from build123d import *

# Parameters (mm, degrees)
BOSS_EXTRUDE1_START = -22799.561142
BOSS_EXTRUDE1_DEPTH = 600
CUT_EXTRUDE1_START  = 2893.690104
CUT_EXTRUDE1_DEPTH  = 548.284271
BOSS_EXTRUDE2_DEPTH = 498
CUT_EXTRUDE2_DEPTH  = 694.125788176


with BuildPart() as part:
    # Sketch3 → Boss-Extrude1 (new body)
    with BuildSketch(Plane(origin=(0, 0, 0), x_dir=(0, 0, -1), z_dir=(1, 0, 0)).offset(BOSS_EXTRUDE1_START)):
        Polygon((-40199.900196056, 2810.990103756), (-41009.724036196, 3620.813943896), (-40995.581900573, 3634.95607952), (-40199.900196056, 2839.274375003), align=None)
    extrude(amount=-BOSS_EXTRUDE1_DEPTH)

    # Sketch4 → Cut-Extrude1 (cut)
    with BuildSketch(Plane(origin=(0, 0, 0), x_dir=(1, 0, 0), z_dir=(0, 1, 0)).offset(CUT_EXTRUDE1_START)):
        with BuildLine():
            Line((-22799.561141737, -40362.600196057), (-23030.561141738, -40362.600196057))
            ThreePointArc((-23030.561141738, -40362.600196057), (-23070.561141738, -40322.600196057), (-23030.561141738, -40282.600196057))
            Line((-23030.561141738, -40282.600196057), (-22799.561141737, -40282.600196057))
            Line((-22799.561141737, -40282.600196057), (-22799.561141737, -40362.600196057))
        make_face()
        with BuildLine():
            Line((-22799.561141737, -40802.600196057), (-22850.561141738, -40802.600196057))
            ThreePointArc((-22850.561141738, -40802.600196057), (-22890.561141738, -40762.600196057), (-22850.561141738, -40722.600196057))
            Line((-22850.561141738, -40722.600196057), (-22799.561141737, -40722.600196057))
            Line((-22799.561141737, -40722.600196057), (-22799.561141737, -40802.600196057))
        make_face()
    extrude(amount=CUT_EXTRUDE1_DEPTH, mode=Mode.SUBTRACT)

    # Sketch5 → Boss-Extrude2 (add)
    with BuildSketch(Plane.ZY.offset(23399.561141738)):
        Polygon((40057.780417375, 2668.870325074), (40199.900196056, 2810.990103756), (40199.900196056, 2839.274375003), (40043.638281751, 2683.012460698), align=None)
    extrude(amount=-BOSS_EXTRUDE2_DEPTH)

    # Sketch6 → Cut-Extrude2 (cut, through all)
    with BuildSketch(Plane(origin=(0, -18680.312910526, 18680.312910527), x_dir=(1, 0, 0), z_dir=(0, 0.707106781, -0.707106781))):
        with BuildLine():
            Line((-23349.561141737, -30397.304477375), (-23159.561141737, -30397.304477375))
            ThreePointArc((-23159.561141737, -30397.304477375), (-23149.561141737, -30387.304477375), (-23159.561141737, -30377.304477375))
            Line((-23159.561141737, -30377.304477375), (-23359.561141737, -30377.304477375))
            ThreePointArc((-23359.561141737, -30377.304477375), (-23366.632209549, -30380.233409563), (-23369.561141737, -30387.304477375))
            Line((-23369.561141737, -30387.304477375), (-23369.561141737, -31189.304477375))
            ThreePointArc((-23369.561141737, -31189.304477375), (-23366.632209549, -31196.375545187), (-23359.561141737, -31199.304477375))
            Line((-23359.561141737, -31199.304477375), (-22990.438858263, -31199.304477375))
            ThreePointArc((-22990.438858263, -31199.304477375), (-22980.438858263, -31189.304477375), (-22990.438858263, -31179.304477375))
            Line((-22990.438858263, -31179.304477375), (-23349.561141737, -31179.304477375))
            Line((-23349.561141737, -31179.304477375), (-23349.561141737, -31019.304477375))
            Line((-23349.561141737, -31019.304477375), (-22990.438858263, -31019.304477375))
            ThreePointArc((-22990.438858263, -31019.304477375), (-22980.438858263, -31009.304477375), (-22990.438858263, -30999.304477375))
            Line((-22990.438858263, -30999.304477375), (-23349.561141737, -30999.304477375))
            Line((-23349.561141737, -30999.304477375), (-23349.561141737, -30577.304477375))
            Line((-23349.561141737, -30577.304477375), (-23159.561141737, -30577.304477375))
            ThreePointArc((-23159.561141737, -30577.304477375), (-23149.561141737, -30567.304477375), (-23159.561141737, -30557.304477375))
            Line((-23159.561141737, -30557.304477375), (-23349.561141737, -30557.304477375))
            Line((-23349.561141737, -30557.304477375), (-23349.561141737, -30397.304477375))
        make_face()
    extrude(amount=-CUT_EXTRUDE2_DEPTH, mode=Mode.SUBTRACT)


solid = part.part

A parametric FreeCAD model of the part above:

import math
import FreeCAD as App
import Part
import Sketcher

V = App.Vector
Q = App.Units.Quantity


def add_polygon(sketch, points):
    """Adds a closed chain of lines whose ends are joined by coincident constraints."""
    first, n = sketch.GeometryCount, len(points)
    for a, b in zip(points, points[1:] + points[:1]):
        sketch.addGeometry(Part.LineSegment(App.Vector(*a, 0), App.Vector(*b, 0)), False)
    for i in range(n):
        sketch.addConstraint(Sketcher.Constraint("Coincident", first + i, 2, first + (i + 1) % n, 1))

doc = App.newDocument("Part")
body = doc.addObject("PartDesign::Body", "Body")

# Sketch on YZ plane
sketch1 = doc.addObject("Sketcher::SketchObject", "Sketch")
body.addObject(sketch1)
sketch1.AttachmentSupport = (doc.YZ_Plane, [""])
sketch1.MapMode = "FlatFace"
sketch1.AttachmentOffset = App.Placement(V(0, 0, -22799.561142), App.Rotation())
add_polygon(sketch1, [(3621, 41010), (2811, 40200), (2839, 40200), (3635, 40996)])  # lines 0-3
sketch1.addConstraint([
    Sketcher.Constraint("Horizontal", 1),
    Sketcher.Constraint("Parallel", 0, 2),
    Sketcher.Constraint("Perpendicular", 2, 3),
    Sketcher.Constraint("Angle", 0, Q("-135 deg")),
    Sketcher.Constraint("Distance", 3, Q("20 mm")),
    Sketcher.Constraint("DistanceY", -1, 1, 2, 2, Q("40995.581901 mm")),
    Sketcher.Constraint("DistanceX", -1, 1, 2, 2, Q("3634.95608 mm")),
    Sketcher.Constraint("DistanceX", 1, 2, 3, 2, Q("781.539569 mm")),
])
pad1 = doc.addObject("PartDesign::Pad", "Pad")
body.addObject(pad1)
pad1.Profile = sketch1
pad1.Length = 600
pad1.Reversed = True

# Sketch on XZ plane
sketch2 = doc.addObject("Sketcher::SketchObject", "Sketch001")
body.addObject(sketch2)
sketch2.AttachmentSupport = (doc.XZ_Plane, [""])
sketch2.MapMode = "FlatFace"
sketch2.AttachmentOffset = App.Placement(V(0, 0, -2893.690104), App.Rotation())
sketch2.addGeometry([
    Part.LineSegment(V(-23031, 40363, 0), V(-22800, 40363, 0)),  # 0
    Part.LineSegment(V(-22800, 40363, 0), V(-22800, 40283, 0)),  # 1
    Part.LineSegment(V(-22800, 40283, 0), V(-23031, 40283, 0)),  # 2
    Part.ArcOfCircle(Part.Circle(V(-23031, 40323, 0), V(0, 0, 1), 40), math.radians(90), math.radians(270)),  # 3
    Part.LineSegment(V(-22851, 40803, 0), V(-22800, 40803, 0)),  # 4
    Part.LineSegment(V(-22800, 40803, 0), V(-22800, 40723, 0)),  # 5
    Part.LineSegment(V(-22800, 40723, 0), V(-22851, 40723, 0)),  # 6
    Part.ArcOfCircle(Part.Circle(V(-22851, 40763, 0), V(0, 0, 1), 40), math.radians(90), math.radians(270)),  # 7
], False)
sketch2.addConstraint([
    Sketcher.Constraint("Coincident", 0, 2, 1, 1),
    Sketcher.Constraint("Coincident", 1, 2, 2, 1),
    Sketcher.Constraint("Tangent", 2, 2, 3, 2),
    Sketcher.Constraint("Tangent", 3, 1, 0, 1),
    Sketcher.Constraint("Coincident", 4, 2, 5, 1),
    Sketcher.Constraint("Coincident", 5, 2, 6, 1),
    Sketcher.Constraint("Tangent", 6, 2, 7, 2),
    Sketcher.Constraint("Tangent", 7, 1, 4, 1),
    Sketcher.Constraint("Horizontal", 0),
    Sketcher.Constraint("Vertical", 1),
    Sketcher.Constraint("Horizontal", 2),
    Sketcher.Constraint("Horizontal", 4),
    Sketcher.Constraint("Vertical", 5),
    Sketcher.Constraint("Horizontal", 6),
    Sketcher.Constraint("Equal", 3, 7),
    Sketcher.Constraint("Vertical", 1, 2, 4, 2),
    Sketcher.Constraint("Radius", 3, Q("40 mm")),
    Sketcher.Constraint("DistanceX", 0, 1, 0, 2, Q("231 mm")),
    Sketcher.Constraint("DistanceX", 4, 1, 4, 2, Q("51 mm")),
    Sketcher.Constraint("DistanceY", 3, 3, 7, 3, Q("440 mm")),
    Sketcher.Constraint("DistanceX", 3, 3, -1, 1, Q("23030.561142 mm")),
    Sketcher.Constraint("DistanceY", -1, 1, 3, 3, Q("40322.600196 mm")),
])
pocket1 = doc.addObject("PartDesign::Pocket", "Pocket")
body.addObject(pocket1)
pocket1.Profile = sketch2
pocket1.Length = 548.284271

# Sketch on YZ plane
sketch3 = doc.addObject("Sketcher::SketchObject", "Sketch002")
body.addObject(sketch3)
sketch3.AttachmentSupport = (doc.YZ_Plane, [""])
sketch3.MapMode = "FlatFace"
sketch3.AttachmentOffset = App.Placement(V(0, 0, -23399.561142), App.Rotation())
add_polygon(sketch3, [(2669, 40058), (2811, 40200), (2839, 40200), (2683, 40044)])  # lines 0-3
sketch3.addConstraint([
    Sketcher.Constraint("Horizontal", 1),
    Sketcher.Constraint("Parallel", 0, 2),
    Sketcher.Constraint("Perpendicular", 2, 3),
    Sketcher.Constraint("Angle", 0, Q("45 deg")),
    Sketcher.Constraint("Distance", 3, Q("20 mm")),
    Sketcher.Constraint("Distance", 0, Q("200.987718 mm")),
    Sketcher.Constraint("DistanceX", -1, 1, 2, 2, Q("2683.012461 mm")),
    Sketcher.Constraint("DistanceY", -1, 1, 2, 2, Q("40043.638282 mm")),
])
pad2 = doc.addObject("PartDesign::Pad", "Pad001")
body.addObject(pad2)
pad2.Profile = sketch3
pad2.Length = 498

# Sketch on an angled plane
sketch4 = doc.addObject("Sketcher::SketchObject", "Sketch003")
body.addObject(sketch4)
sketch4.Placement = App.Placement(V(0, -18680.312911, 18680.312911), App.Rotation(V(1, 0, 0), V(0, -0.707106781, -0.707106781), V(0, 0.707106781, -0.707106781), "ZXY"))
sketch4.addGeometry([
    Part.LineSegment(V(-23350, -30397, 0), V(-23160, -30397, 0)),  # 0
    Part.ArcOfCircle(Part.Circle(V(-23160, -30387, 0), V(0, 0, 1), 10), math.radians(-90), math.radians(90)),  # 1
    Part.LineSegment(V(-23160, -30377, 0), V(-23360, -30377, 0)),  # 2
    Part.ArcOfCircle(Part.Circle(V(-23360, -30387, 0), V(0, 0, 1), 10), math.radians(90), math.radians(180)),  # 3
    Part.LineSegment(V(-23370, -30387, 0), V(-23370, -31189, 0)),  # 4
    Part.ArcOfCircle(Part.Circle(V(-23360, -31189, 0), V(0, 0, 1), 10), math.radians(180), math.radians(270)),  # 5
    Part.LineSegment(V(-23360, -31199, 0), V(-22990, -31199, 0)),  # 6
    Part.ArcOfCircle(Part.Circle(V(-22990, -31189, 0), V(0, 0, 1), 10), math.radians(-90), math.radians(90)),  # 7
    Part.LineSegment(V(-22990, -31179, 0), V(-23350, -31179, 0)),  # 8
    Part.LineSegment(V(-23350, -31179, 0), V(-23350, -31019, 0)),  # 9
    Part.LineSegment(V(-23350, -31019, 0), V(-22990, -31019, 0)),  # 10
    Part.ArcOfCircle(Part.Circle(V(-22990, -31009, 0), V(0, 0, 1), 10), math.radians(-90), math.radians(90)),  # 11
    Part.LineSegment(V(-22990, -30999, 0), V(-23350, -30999, 0)),  # 12
    Part.LineSegment(V(-23350, -30999, 0), V(-23350, -30577, 0)),  # 13
    Part.LineSegment(V(-23350, -30577, 0), V(-23160, -30577, 0)),  # 14
    Part.ArcOfCircle(Part.Circle(V(-23160, -30567, 0), V(0, 0, 1), 10), math.radians(-90), math.radians(90)),  # 15
    Part.LineSegment(V(-23160, -30557, 0), V(-23350, -30557, 0)),  # 16
    Part.LineSegment(V(-23350, -30557, 0), V(-23350, -30397, 0)),  # 17
], False)
sketch4.addConstraint([
    Sketcher.Constraint("Tangent", 0, 2, 1, 1),
    Sketcher.Constraint("Tangent", 1, 2, 2, 1),
    Sketcher.Constraint("Tangent", 2, 2, 3, 1),
    Sketcher.Constraint("Tangent", 3, 2, 4, 1),
    Sketcher.Constraint("Tangent", 4, 2, 5, 1),
    Sketcher.Constraint("Tangent", 5, 2, 6, 1),
    Sketcher.Constraint("Tangent", 6, 2, 7, 1),
    Sketcher.Constraint("Tangent", 7, 2, 8, 1),
    Sketcher.Constraint("Coincident", 8, 2, 9, 1),
    Sketcher.Constraint("Coincident", 9, 2, 10, 1),
    Sketcher.Constraint("Tangent", 10, 2, 11, 1),
    Sketcher.Constraint("Tangent", 11, 2, 12, 1),
    Sketcher.Constraint("Coincident", 12, 2, 13, 1),
    Sketcher.Constraint("Coincident", 13, 2, 14, 1),
    Sketcher.Constraint("Tangent", 14, 2, 15, 1),
    Sketcher.Constraint("Tangent", 15, 2, 16, 1),
    Sketcher.Constraint("Coincident", 16, 2, 17, 1),
    Sketcher.Constraint("Coincident", 17, 2, 0, 1),
    Sketcher.Constraint("Horizontal", 0),
    Sketcher.Constraint("Horizontal", 2),
    Sketcher.Constraint("Vertical", 4),
    Sketcher.Constraint("Horizontal", 6),
    Sketcher.Constraint("Horizontal", 8),
    Sketcher.Constraint("Vertical", 9),
    Sketcher.Constraint("Horizontal", 10),
    Sketcher.Constraint("Horizontal", 12),
    Sketcher.Constraint("Vertical", 13),
    Sketcher.Constraint("Horizontal", 14),
    Sketcher.Constraint("Horizontal", 16),
    Sketcher.Constraint("Vertical", 17),
    Sketcher.Constraint("Equal", 1, 3),
    Sketcher.Constraint("Equal", 3, 5),
    Sketcher.Constraint("Equal", 5, 7),
    Sketcher.Constraint("Equal", 7, 11),
    Sketcher.Constraint("Equal", 11, 15),
    Sketcher.Constraint("Vertical", 7, 3, 11, 3),
    Sketcher.Constraint("Vertical", 1, 3, 15, 3),
    Sketcher.Constraint("Vertical", 9, 2, 12, 2),
    Sketcher.Constraint("Vertical", 13, 2, 16, 2),
    Sketcher.Constraint("Equal", 9, 17),
    Sketcher.Constraint("Radius", 1, Q("10 mm")),
    Sketcher.Constraint("DistanceX", 0, 1, 0, 2, Q("190 mm")),
    Sketcher.Constraint("DistanceX", 2, 2, 2, 1, Q("200 mm")),
    Sketcher.Constraint("DistanceY", 4, 2, 4, 1, Q("802 mm")),
    Sketcher.Constraint("DistanceY", 9, 1, 9, 2, Q("160 mm")),
    Sketcher.Constraint("DistanceX", 6, 1, 6, 2, Q("369.122283 mm")),
    Sketcher.Constraint("DistanceX", 1, 3, -1, 1, Q("23159.561142 mm")),
    Sketcher.Constraint("DistanceY", 1, 3, -1, 1, Q("30387.304461 mm")),
])
pocket2 = doc.addObject("PartDesign::Pocket", "Pocket001")
body.addObject(pocket2)
pocket2.Profile = sketch4
pocket2.Type = "ThroughAll"

doc.recompute()
